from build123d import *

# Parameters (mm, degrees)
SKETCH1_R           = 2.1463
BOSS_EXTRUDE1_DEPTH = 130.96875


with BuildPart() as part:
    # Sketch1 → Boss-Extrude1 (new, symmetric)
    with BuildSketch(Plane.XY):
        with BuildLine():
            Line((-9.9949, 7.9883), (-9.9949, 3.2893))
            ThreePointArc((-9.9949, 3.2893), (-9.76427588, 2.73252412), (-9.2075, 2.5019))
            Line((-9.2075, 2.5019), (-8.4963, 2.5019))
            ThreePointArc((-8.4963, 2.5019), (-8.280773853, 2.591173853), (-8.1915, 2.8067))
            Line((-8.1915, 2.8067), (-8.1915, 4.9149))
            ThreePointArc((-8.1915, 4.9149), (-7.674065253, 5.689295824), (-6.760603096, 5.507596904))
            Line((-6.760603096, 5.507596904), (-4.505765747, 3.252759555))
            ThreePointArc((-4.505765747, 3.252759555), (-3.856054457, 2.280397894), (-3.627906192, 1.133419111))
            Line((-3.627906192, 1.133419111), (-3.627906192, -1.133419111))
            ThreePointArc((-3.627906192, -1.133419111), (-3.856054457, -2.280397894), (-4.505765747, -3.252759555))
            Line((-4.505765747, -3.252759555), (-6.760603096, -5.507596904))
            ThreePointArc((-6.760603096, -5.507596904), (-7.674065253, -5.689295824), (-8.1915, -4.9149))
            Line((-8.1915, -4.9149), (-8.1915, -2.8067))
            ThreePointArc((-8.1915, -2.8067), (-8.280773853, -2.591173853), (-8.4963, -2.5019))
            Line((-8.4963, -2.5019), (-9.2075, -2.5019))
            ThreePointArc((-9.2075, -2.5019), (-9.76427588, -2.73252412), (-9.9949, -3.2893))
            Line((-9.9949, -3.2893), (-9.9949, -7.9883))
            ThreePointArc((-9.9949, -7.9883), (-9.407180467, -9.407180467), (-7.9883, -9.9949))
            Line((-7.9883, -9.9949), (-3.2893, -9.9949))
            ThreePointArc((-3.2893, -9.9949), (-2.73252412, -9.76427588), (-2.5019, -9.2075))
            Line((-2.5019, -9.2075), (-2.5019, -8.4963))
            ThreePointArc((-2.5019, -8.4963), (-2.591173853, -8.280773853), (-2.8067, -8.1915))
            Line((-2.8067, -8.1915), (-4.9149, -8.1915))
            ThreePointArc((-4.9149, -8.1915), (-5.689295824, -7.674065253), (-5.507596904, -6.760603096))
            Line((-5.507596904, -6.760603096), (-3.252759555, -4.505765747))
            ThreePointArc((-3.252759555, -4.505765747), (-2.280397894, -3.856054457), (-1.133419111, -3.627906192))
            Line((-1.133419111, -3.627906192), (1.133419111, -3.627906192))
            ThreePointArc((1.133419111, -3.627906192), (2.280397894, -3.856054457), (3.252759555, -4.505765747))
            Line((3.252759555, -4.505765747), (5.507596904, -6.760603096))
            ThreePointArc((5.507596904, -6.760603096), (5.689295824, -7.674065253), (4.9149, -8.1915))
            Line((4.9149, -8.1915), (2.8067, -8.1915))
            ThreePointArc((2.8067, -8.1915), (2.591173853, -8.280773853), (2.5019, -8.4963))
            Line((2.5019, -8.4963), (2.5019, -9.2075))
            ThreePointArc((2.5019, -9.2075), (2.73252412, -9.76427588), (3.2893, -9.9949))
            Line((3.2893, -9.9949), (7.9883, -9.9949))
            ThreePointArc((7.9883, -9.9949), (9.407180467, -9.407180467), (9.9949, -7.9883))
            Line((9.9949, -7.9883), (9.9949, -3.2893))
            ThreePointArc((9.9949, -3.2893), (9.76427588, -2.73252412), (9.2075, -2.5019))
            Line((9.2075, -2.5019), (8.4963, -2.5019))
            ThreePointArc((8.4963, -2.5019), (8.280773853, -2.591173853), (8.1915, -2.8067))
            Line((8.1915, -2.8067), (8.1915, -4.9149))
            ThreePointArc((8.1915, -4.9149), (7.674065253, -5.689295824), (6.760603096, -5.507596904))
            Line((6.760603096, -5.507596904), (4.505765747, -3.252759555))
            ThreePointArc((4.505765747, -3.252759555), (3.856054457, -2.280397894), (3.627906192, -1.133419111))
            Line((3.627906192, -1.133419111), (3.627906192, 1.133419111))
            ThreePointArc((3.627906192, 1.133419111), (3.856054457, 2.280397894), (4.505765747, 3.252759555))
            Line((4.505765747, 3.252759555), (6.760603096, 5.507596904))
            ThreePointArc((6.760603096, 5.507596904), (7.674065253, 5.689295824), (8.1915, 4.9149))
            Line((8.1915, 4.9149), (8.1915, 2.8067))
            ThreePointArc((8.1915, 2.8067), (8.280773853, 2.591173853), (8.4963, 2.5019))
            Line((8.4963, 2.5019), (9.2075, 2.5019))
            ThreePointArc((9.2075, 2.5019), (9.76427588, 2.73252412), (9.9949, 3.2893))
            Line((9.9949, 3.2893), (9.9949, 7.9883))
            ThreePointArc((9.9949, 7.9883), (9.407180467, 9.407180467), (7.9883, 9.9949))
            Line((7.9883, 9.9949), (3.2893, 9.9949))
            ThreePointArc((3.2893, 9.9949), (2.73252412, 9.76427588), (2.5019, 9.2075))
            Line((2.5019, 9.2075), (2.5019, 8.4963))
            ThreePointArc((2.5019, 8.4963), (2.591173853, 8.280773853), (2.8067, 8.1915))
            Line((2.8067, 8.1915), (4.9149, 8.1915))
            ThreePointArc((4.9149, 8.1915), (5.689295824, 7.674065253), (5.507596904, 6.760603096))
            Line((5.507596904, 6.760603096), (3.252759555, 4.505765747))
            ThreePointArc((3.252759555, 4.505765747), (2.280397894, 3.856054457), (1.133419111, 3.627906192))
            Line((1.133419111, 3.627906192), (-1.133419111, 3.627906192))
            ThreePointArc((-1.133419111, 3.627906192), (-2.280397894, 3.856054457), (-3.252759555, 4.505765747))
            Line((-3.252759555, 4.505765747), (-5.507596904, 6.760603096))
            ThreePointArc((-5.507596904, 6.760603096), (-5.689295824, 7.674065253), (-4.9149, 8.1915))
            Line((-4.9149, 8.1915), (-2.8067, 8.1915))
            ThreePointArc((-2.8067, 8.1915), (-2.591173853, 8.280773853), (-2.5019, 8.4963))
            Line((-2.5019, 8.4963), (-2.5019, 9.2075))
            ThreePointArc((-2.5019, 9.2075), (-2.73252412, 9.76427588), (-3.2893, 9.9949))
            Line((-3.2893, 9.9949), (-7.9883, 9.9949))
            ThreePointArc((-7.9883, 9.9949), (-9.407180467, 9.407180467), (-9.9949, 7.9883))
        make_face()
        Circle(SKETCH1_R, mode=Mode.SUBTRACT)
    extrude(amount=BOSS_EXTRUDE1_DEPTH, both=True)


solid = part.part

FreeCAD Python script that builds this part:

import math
import FreeCAD as App
import Part
import Sketcher
Q = App.Units.Quantity

doc = App.newDocument("Part")
body = doc.addObject("PartDesign::Body", "Body")

# Sketch on XY plane
sketch1 = doc.addObject("Sketcher::SketchObject", "Sketch")
body.addObject(sketch1)
sketch1.AttachmentSupport = (doc.XY_Plane, [""])
sketch1.MapMode = "FlatFace"
sketch1.addGeometry([
    Part.LineSegment(App.Vector(-9.99, 7.99, 0), App.Vector(-9.99, 3.29, 0)),  # 0
    Part.ArcOfCircle(Part.Circle(App.Vector(-9.21, 3.29, 0), App.Vector(0, 0, 1), 0.79), math.radians(180), math.radians(270)),  # 1
    Part.LineSegment(App.Vector(-9.21, 2.5, 0), App.Vector(-8.5, 2.5, 0)),  # 2
    Part.ArcOfCircle(Part.Circle(App.Vector(-8.5, 2.81, 0), App.Vector(0, 0, 1), 0.3), math.radians(-90), math.radians(0)),  # 3
    Part.LineSegment(App.Vector(-8.19, 2.81, 0), App.Vector(-8.19, 4.91, 0)),  # 4
    Part.ArcOfCircle(Part.Circle(App.Vector(-7.35, 4.91, 0), App.Vector(0, 0, 1), 0.84), math.radians(45), math.radians(180)),  # 5
    Part.LineSegment(App.Vector(-6.76, 5.51, 0), App.Vector(-4.51, 3.25, 0)),  # 6
    Part.ArcOfCircle(Part.Circle(App.Vector(-6.63, 1.13, 0), App.Vector(0, 0, 1), 3), math.radians(0), math.radians(45)),  # 7
    Part.LineSegment(App.Vector(-3.63, 1.13, 0), App.Vector(-3.63, -1.13, 0)),  # 8
    Part.ArcOfCircle(Part.Circle(App.Vector(-6.63, -1.13, 0), App.Vector(0, 0, 1), 3), math.radians(-45), math.radians(0)),  # 9
    Part.LineSegment(App.Vector(-4.51, -3.25, 0), App.Vector(-6.76, -5.51, 0)),  # 10
    Part.ArcOfCircle(Part.Circle(App.Vector(-7.35, -4.91, 0), App.Vector(0, 0, 1), 0.84), math.radians(180), math.radians(315)),  # 11
    Part.LineSegment(App.Vector(-8.19, -4.91, 0), App.Vector(-8.19, -2.81, 0)),  # 12
    Part.ArcOfCircle(Part.Circle(App.Vector(-8.5, -2.81, 0), App.Vector(0, 0, 1), 0.3), math.radians(0), math.radians(90)),  # 13
    Part.LineSegment(App.Vector(-8.5, -2.5, 0), App.Vector(-9.21, -2.5, 0)),  # 14
    Part.ArcOfCircle(Part.Circle(App.Vector(-9.21, -3.29, 0), App.Vector(0, 0, 1), 0.79), math.radians(90), math.radians(180)),  # 15
    Part.LineSegment(App.Vector(-9.99, -3.29, 0), App.Vector(-9.99, -7.99, 0)),  # 16
    Part.ArcOfCircle(Part.Circle(App.Vector(-7.99, -7.99, 0), App.Vector(0, 0, 1), 2.01), math.radians(180), math.radians(270)),  # 17
    Part.LineSegment(App.Vector(-7.99, -9.99, 0), App.Vector(-3.29, -9.99, 0)),  # 18
    Part.ArcOfCircle(Part.Circle(App.Vector(-3.29, -9.21, 0), App.Vector(0, 0, 1), 0.79), math.radians(-90), math.radians(0)),  # 19
    Part.LineSegment(App.Vector(-2.5, -9.21, 0), App.Vector(-2.5, -8.5, 0)),  # 20
    Part.ArcOfCircle(Part.Circle(App.Vector(-2.81, -8.5, 0), App.Vector(0, 0, 1), 0.3), math.radians(0), math.radians(90)),  # 21
    Part.LineSegment(App.Vector(-2.81, -8.19, 0), App.Vector(-4.91, -8.19, 0)),  # 22
    Part.ArcOfCircle(Part.Circle(App.Vector(-4.91, -7.35, 0), App.Vector(0, 0, 1), 0.84), math.radians(135), math.radians(270)),  # 23
    Part.LineSegment(App.Vector(-5.51, -6.76, 0), App.Vector(-3.25, -4.51, 0)),  # 24
    Part.ArcOfCircle(Part.Circle(App.Vector(-1.13, -6.63, 0), App.Vector(0, 0, 1), 3), math.radians(90), math.radians(135)),  # 25
    Part.LineSegment(App.Vector(-1.13, -3.63, 0), App.Vector(1.13, -3.63, 0)),  # 26
    Part.ArcOfCircle(Part.Circle(App.Vector(1.13, -6.63, 0), App.Vector(0, 0, 1), 3), math.radians(45), math.radians(90)),  # 27
    Part.LineSegment(App.Vector(3.25, -4.51, 0), App.Vector(5.51, -6.76, 0)),  # 28
    Part.ArcOfCircle(Part.Circle(App.Vector(4.91, -7.35, 0), App.Vector(0, 0, 1), 0.84), math.radians(-90), math.radians(45)),  # 29
    Part.LineSegment(App.Vector(4.91, -8.19, 0), App.Vector(2.81, -8.19, 0)),  # 30
    Part.ArcOfCircle(Part.Circle(App.Vector(2.81, -8.5, 0), App.Vector(0, 0, 1), 0.3), math.radians(90), math.radians(180)),  # 31
    Part.LineSegment(App.Vector(2.5, -8.5, 0), App.Vector(2.5, -9.21, 0)),  # 32
    Part.ArcOfCircle(Part.Circle(App.Vector(3.29, -9.21, 0), App.Vector(0, 0, 1), 0.79), math.radians(180), math.radians(270)),  # 33
    Part.LineSegment(App.Vector(3.29, -9.99, 0), App.Vector(7.99, -9.99, 0)),  # 34
    Part.ArcOfCircle(Part.Circle(App.Vector(7.99, -7.99, 0), App.Vector(0, 0, 1), 2.01), math.radians(-90), math.radians(0)),  # 35
    Part.LineSegment(App.Vector(9.99, -7.99, 0), App.Vector(9.99, -3.29, 0)),  # 36
    Part.ArcOfCircle(Part.Circle(App.Vector(9.21, -3.29, 0), App.Vector(0, 0, 1), 0.79), math.radians(0), math.radians(90)),  # 37
    Part.LineSegment(App.Vector(9.21, -2.5, 0), App.Vector(8.5, -2.5, 0)),  # 38
    Part.ArcOfCircle(Part.Circle(App.Vector(8.5, -2.81, 0), App.Vector(0, 0, 1), 0.3), math.radians(90), math.radians(180)),  # 39
    Part.LineSegment(App.Vector(8.19, -2.81, 0), App.Vector(8.19, -4.91, 0)),  # 40
    Part.ArcOfCircle(Part.Circle(App.Vector(7.35, -4.91, 0), App.Vector(0, 0, 1), 0.84), math.radians(-135), math.radians(0)),  # 41
    Part.LineSegment(App.Vector(6.76, -5.51, 0), App.Vector(4.51, -3.25, 0)),  # 42
    Part.ArcOfCircle(Part.Circle(App.Vector(6.63, -1.13, 0), App.Vector(0, 0, 1), 3), math.radians(180), math.radians(225)),  # 43
    Part.LineSegment(App.Vector(3.63, -1.13, 0), App.Vector(3.63, 1.13, 0)),  # 44
    Part.ArcOfCircle(Part.Circle(App.Vector(6.63, 1.13, 0), App.Vector(0, 0, 1), 3), math.radians(135), math.radians(180)),  # 45
    Part.LineSegment(App.Vector(4.51, 3.25, 0), App.Vector(6.76, 5.51, 0)),  # 46
    Part.ArcOfCircle(Part.Circle(App.Vector(7.35, 4.91, 0), App.Vector(0, 0, 1), 0.84), math.radians(0), math.radians(135)),  # 47
    Part.LineSegment(App.Vector(8.19, 4.91, 0), App.Vector(8.19, 2.81, 0)),  # 48
    Part.ArcOfCircle(Part.Circle(App.Vector(8.5, 2.81, 0), App.Vector(0, 0, 1), 0.3), math.radians(180), math.radians(270)),  # 49
    Part.LineSegment(App.Vector(8.5, 2.5, 0), App.Vector(9.21, 2.5, 0)),  # 50
    Part.ArcOfCircle(Part.Circle(App.Vector(9.21, 3.29, 0), App.Vector(0, 0, 1), 0.79), math.radians(-90), math.radians(0)),  # 51
    Part.LineSegment(App.Vector(9.99, 3.29, 0), App.Vector(9.99, 7.99, 0)),  # 52
    Part.ArcOfCircle(Part.Circle(App.Vector(7.99, 7.99, 0), App.Vector(0, 0, 1), 2.01), math.radians(0), math.radians(90)),  # 53
    Part.LineSegment(App.Vector(7.99, 9.99, 0), App.Vector(3.29, 9.99, 0)),  # 54
    Part.ArcOfCircle(Part.Circle(App.Vector(3.29, 9.21, 0), App.Vector(0, 0, 1), 0.79), math.radians(90), math.radians(180)),  # 55
    Part.LineSegment(App.Vector(2.5, 9.21, 0), App.Vector(2.5, 8.5, 0)),  # 56
    Part.ArcOfCircle(Part.Circle(App.Vector(2.81, 8.5, 0), App.Vector(0, 0, 1), 0.3), math.radians(180), math.radians(270)),  # 57
    Part.LineSegment(App.Vector(2.81, 8.19, 0), App.Vector(4.91, 8.19, 0)),  # 58
    Part.ArcOfCircle(Part.Circle(App.Vector(4.91, 7.35, 0), App.Vector(0, 0, 1), 0.84), math.radians(-45), math.radians(90)),  # 59
    Part.LineSegment(App.Vector(5.51, 6.76, 0), App.Vector(3.25, 4.51, 0)),  # 60
    Part.ArcOfCircle(Part.Circle(App.Vector(1.13, 6.63, 0), App.Vector(0, 0, 1), 3), math.radians(-90), math.radians(-45)),  # 61
    Part.LineSegment(App.Vector(1.13, 3.63, 0), App.Vector(-1.13, 3.63, 0)),  # 62
    Part.ArcOfCircle(Part.Circle(App.Vector(-1.13, 6.63, 0), App.Vector(0, 0, 1), 3), math.radians(-135), math.radians(-90)),  # 63
    Part.LineSegment(App.Vector(-3.25, 4.51, 0), App.Vector(-5.51, 6.76, 0)),  # 64
    Part.ArcOfCircle(Part.Circle(App.Vector(-4.91, 7.35, 0), App.Vector(0, 0, 1), 0.84), math.radians(90), math.radians(225)),  # 65
    Part.LineSegment(App.Vector(-4.91, 8.19, 0), App.Vector(-2.81, 8.19, 0)),  # 66
    Part.ArcOfCircle(Part.Circle(App.Vector(-2.81, 8.5, 0), App.Vector(0, 0, 1), 0.3), math.radians(-90), math.radians(0)),  # 67
    Part.LineSegment(App.Vector(-2.5, 8.5, 0), App.Vector(-2.5, 9.21, 0)),  # 68
    Part.ArcOfCircle(Part.Circle(App.Vector(-3.29, 9.21, 0), App.Vector(0, 0, 1), 0.79), math.radians(0), math.radians(90)),  # 69
    Part.LineSegment(App.Vector(-3.29, 9.99, 0), App.Vector(-7.99, 9.99, 0)),  # 70
    Part.ArcOfCircle(Part.Circle(App.Vector(-7.99, 7.99, 0), App.Vector(0, 0, 1), 2.01), math.radians(90), math.radians(180)),  # 71
    Part.Circle(App.Vector(0, 0, 0), App.Vector(0, 0, 1), 2.15),  # 72
], False)
sketch1.addConstraint([
    Sketcher.Constraint("Tangent", 0, 2, 1, 1),
    Sketcher.Constraint("Tangent", 1, 2, 2, 1),
    Sketcher.Constraint("Tangent", 2, 2, 3, 1),
    Sketcher.Constraint("Tangent", 3, 2, 4, 1),
    Sketcher.Constraint("Tangent", 4, 2, 5, 2),
    Sketcher.Constraint("Tangent", 5, 1, 6, 1),
    Sketcher.Constraint("Tangent", 6, 2, 7, 2),
    Sketcher.Constraint("Tangent", 7, 1, 8, 1),
    Sketcher.Constraint("Tangent", 8, 2, 9, 2),
    Sketcher.Constraint("Tangent", 9, 1, 10, 1),
    Sketcher.Constraint("Tangent", 10, 2, 11, 2),
    Sketcher.Constraint("Tangent", 11, 1, 12, 1),
    Sketcher.Constraint("Tangent", 12, 2, 13, 1),
    Sketcher.Constraint("Tangent", 13, 2, 14, 1),
    Sketcher.Constraint("Tangent", 14, 2, 15, 1),
    Sketcher.Constraint("Tangent", 15, 2, 16, 1),
    Sketcher.Constraint("Tangent", 16, 2, 17, 1),
    Sketcher.Constraint("Tangent", 17, 2, 18, 1),
    Sketcher.Constraint("Tangent", 18, 2, 19, 1),
    Sketcher.Constraint("Tangent", 19, 2, 20, 1),
    Sketcher.Constraint("Tangent", 20, 2, 21, 1),
    Sketcher.Constraint("Tangent", 21, 2, 22, 1),
    Sketcher.Constraint("Tangent", 22, 2, 23, 2),
    Sketcher.Constraint("Tangent", 23, 1, 24, 1),
    Sketcher.Constraint("Tangent", 24, 2, 25, 2),
    Sketcher.Constraint("Tangent", 25, 1, 26, 1),
    Sketcher.Constraint("Tangent", 26, 2, 27, 2),
    Sketcher.Constraint("Tangent", 27, 1, 28, 1),
    Sketcher.Constraint("Tangent", 28, 2, 29, 2),
    Sketcher.Constraint("Tangent", 29, 1, 30, 1),
    Sketcher.Constraint("Tangent", 30, 2, 31, 1),
    Sketcher.Constraint("Tangent", 31, 2, 32, 1),
    Sketcher.Constraint("Tangent", 32, 2, 33, 1),
    Sketcher.Constraint("Tangent", 33, 2, 34, 1),
    Sketcher.Constraint("Tangent", 34, 2, 35, 1),
    Sketcher.Constraint("Tangent", 35, 2, 36, 1),
    Sketcher.Constraint("Tangent", 36, 2, 37, 1),
    Sketcher.Constraint("Tangent", 37, 2, 38, 1),
    Sketcher.Constraint("Tangent", 38, 2, 39, 1),
    Sketcher.Constraint("Tangent", 39, 2, 40, 1),
    Sketcher.Constraint("Tangent", 40, 2, 41, 2),
    Sketcher.Constraint("Tangent", 41, 1, 42, 1),
    Sketcher.Constraint("Tangent", 42, 2, 43, 2),
    Sketcher.Constraint("Tangent", 43, 1, 44, 1),
    Sketcher.Constraint("Tangent", 44, 2, 45, 2),
    Sketcher.Constraint("Tangent", 45, 1, 46, 1),
    Sketcher.Constraint("Tangent", 46, 2, 47, 2),
    Sketcher.Constraint("Tangent", 47, 1, 48, 1),
    Sketcher.Constraint("Tangent", 48, 2, 49, 1),
    Sketcher.Constraint("Tangent", 49, 2, 50, 1),
    Sketcher.Constraint("Tangent", 50, 2, 51, 1),
    Sketcher.Constraint("Tangent", 51, 2, 52, 1),
    Sketcher.Constraint("Tangent", 52, 2, 53, 1),
    Sketcher.Constraint("Tangent", 53, 2, 54, 1),
    Sketcher.Constraint("Tangent", 54, 2, 55, 1),
    Sketcher.Constraint("Tangent", 55, 2, 56, 1),
    Sketcher.Constraint("Tangent", 56, 2, 57, 1),
    Sketcher.Constraint("Tangent", 57, 2, 58, 1),
    Sketcher.Constraint("Tangent", 58, 2, 59, 2),
    Sketcher.Constraint("Tangent", 59, 1, 60, 1),
    Sketcher.Constraint("Tangent", 60, 2, 61, 2),
    Sketcher.Constraint("Tangent", 61, 1, 62, 1),
    Sketcher.Constraint("Tangent", 62, 2, 63, 2),
    Sketcher.Constraint("Tangent", 63, 1, 64, 1),
    Sketcher.Constraint("Tangent", 64, 2, 65, 2),
    Sketcher.Constraint("Tangent", 65, 1, 66, 1),
    Sketcher.Constraint("Tangent", 66, 2, 67, 1),
    Sketcher.Constraint("Tangent", 67, 2, 68, 1),
    Sketcher.Constraint("Tangent", 68, 2, 69, 1),
    Sketcher.Constraint("Tangent", 69, 2, 70, 1),
    Sketcher.Constraint("Tangent", 70, 2, 71, 1),
    Sketcher.Constraint("Tangent", 71, 2, 0, 1),
    Sketcher.Constraint("Vertical", 0),
    Sketcher.Constraint("Horizontal", 2),
    Sketcher.Constraint("Vertical", 4),
    Sketcher.Constraint("Vertical", 8),
    Sketcher.Constraint("Vertical", 12),
    Sketcher.Constraint("Horizontal", 14),
    Sketcher.Constraint("Vertical", 16),
    Sketcher.Constraint("Horizontal", 18),
    Sketcher.Constraint("Vertical", 20),
    Sketcher.Constraint("Horizontal", 22),
    Sketcher.Constraint("Horizontal", 26),
    Sketcher.Constraint("Horizontal", 30),
    Sketcher.Constraint("Vertical", 32),
    Sketcher.Constraint("Horizontal", 34),
    Sketcher.Constraint("Vertical", 36),
    Sketcher.Constraint("Horizontal", 38),
    Sketcher.Constraint("Vertical", 40),
    Sketcher.Constraint("Vertical", 44),
    Sketcher.Constraint("Vertical", 48),
    Sketcher.Constraint("Horizontal", 50),
    Sketcher.Constraint("Vertical", 52),
    Sketcher.Constraint("Horizontal", 54),
    Sketcher.Constraint("Vertical", 56),
    Sketcher.Constraint("Horizontal", 58),
    Sketcher.Constraint("Horizontal", 62),
    Sketcher.Constraint("Horizontal", 66),
    Sketcher.Constraint("Vertical", 68),
    Sketcher.Constraint("Horizontal", 70),
    Sketcher.Constraint("Coincident", 72, 3, -1, 1),
    Sketcher.Constraint("Equal", 7, 9),
    Sketcher.Constraint("Equal", 5, 11),
    Sketcher.Constraint("Equal", 3, 13),
    Sketcher.Constraint("Equal", 1, 15),
    Sketcher.Constraint("Equal", 15, 19),
    Sketcher.Constraint("Equal", 13, 21),
    Sketcher.Constraint("Equal", 11, 23),
    Sketcher.Constraint("Equal", 9, 25),
    Sketcher.Constraint("Equal", 25, 27),
    Sketcher.Constraint("Equal", 23, 29),
    Sketcher.Constraint("Equal", 21, 31),
    Sketcher.Constraint("Equal", 19, 33),
    Sketcher.Constraint("Equal", 17, 35),
    Sketcher.Constraint("Equal", 33, 37),
    Sketcher.Constraint("Equal", 31, 39),
    Sketcher.Constraint("Equal", 29, 41),
    Sketcher.Constraint("Equal", 27, 43),
    Sketcher.Constraint("Equal", 43, 45),
    Sketcher.Constraint("Equal", 41, 47),
    Sketcher.Constraint("Equal", 39, 49),
    Sketcher.Constraint("Equal", 37, 51),
    Sketcher.Constraint("Equal", 35, 53),
    Sketcher.Constraint("Equal", 51, 55),
    Sketcher.Constraint("Equal", 49, 57),
    Sketcher.Constraint("Equal", 47, 59),
    Sketcher.Constraint("Equal", 45, 61),
    Sketcher.Constraint("Equal", 61, 63),
    Sketcher.Constraint("Equal", 59, 65),
    Sketcher.Constraint("Equal", 57, 67),
    Sketcher.Constraint("Equal", 55, 69),
    Sketcher.Constraint("Equal", 53, 71),
    Sketcher.Constraint("Symmetric", 1, 3, 37, 3, -1, 1),
    Sketcher.Constraint("Symmetric", 5, 3, 41, 3, -1, 1),
    Sketcher.Constraint("Symmetric", 7, 3, 43, 3, -1, 1),
    Sketcher.Constraint("Symmetric", 11, 3, 47, 3, -1, 1),
    Sketcher.Constraint("Symmetric", 15, 3, 51, 3, -1, 1),
    Sketcher.Constraint("Symmetric", 19, 3, 55, 3, -1, 1),
    Sketcher.Constraint("Symmetric", 23, 3, 59, 3, -1, 1),
    Sketcher.Constraint("Symmetric", 25, 3, 61, 3, -1, 1),
    Sketcher.Constraint("Symmetric", 29, 3, 65, 3, -1, 1),
    Sketcher.Constraint("Symmetric", 33, 3, 69, 3, -1, 1),
    Sketcher.Constraint("Symmetric", 23, 3, 29, 3, -2),
    Sketcher.Constraint("Symmetric", 19, 3, 33, 3, -2),
    Sketcher.Constraint("Symmetric", 15, 3, 37, 3, -2),
    Sketcher.Constraint("Symmetric", 11, 3, 41, 3, -2),
    Sketcher.Constraint("Perpendicular", 6, 10),
    Sketcher.Constraint("Parallel", 10, 24),
    Sketcher.Constraint("Perpendicular", 24, 28),
    Sketcher.Constraint("Perpendicular", 42, 46),
    Sketcher.Constraint("Perpendicular", 60, 64),
    Sketcher.Constraint("Horizontal", 9, 3, 43, 3),
    Sketcher.Constraint("Equal", 70, 0),
    Sketcher.Constraint("Equal", 66, 4),
    Sketcher.Constraint("Equal", 62, 8),
    Sketcher.Constraint("Equal", 50, 20),
    Sketcher.Constraint("Equal", 10, 24),
    Sketcher.Constraint("Diameter", 72, Q("0.169 in")),
    Sketcher.Constraint("Radius", 1, Q("0.031 in")),
    Sketcher.Constraint("Radius", 3, Q("0.012 in")),
    Sketcher.Constraint("Radius", 5, Q("0.033 in")),
    Sketcher.Constraint("Radius", 7, Q("0.118 in")),
    Sketcher.Constraint("Radius", 17, Q("0.079 in")),
    Sketcher.Constraint("DistanceX", 2, 1, 2, 2, Q("0.028 in")),
    Sketcher.Constraint("DistanceX", 18, 1, 18, 2, Q("0.185 in")),
    Sketcher.Constraint("DistanceX", 22, 2, 22, 1, Q("0.083 in")),
    Sketcher.Constraint("DistanceX", 1, 3, -1, 1, Q("0.3625 in")),
    Sketcher.Constraint("DistanceX", 26, 1, 26, 2, Q("2.266838 mm")),
])
pad1 = doc.addObject("PartDesign::Pad", "Pad")
body.addObject(pad1)
pad1.Profile = sketch1
pad1.Length = Q("10.3125 in")
pad1.Midplane = True

doc.recompute()
